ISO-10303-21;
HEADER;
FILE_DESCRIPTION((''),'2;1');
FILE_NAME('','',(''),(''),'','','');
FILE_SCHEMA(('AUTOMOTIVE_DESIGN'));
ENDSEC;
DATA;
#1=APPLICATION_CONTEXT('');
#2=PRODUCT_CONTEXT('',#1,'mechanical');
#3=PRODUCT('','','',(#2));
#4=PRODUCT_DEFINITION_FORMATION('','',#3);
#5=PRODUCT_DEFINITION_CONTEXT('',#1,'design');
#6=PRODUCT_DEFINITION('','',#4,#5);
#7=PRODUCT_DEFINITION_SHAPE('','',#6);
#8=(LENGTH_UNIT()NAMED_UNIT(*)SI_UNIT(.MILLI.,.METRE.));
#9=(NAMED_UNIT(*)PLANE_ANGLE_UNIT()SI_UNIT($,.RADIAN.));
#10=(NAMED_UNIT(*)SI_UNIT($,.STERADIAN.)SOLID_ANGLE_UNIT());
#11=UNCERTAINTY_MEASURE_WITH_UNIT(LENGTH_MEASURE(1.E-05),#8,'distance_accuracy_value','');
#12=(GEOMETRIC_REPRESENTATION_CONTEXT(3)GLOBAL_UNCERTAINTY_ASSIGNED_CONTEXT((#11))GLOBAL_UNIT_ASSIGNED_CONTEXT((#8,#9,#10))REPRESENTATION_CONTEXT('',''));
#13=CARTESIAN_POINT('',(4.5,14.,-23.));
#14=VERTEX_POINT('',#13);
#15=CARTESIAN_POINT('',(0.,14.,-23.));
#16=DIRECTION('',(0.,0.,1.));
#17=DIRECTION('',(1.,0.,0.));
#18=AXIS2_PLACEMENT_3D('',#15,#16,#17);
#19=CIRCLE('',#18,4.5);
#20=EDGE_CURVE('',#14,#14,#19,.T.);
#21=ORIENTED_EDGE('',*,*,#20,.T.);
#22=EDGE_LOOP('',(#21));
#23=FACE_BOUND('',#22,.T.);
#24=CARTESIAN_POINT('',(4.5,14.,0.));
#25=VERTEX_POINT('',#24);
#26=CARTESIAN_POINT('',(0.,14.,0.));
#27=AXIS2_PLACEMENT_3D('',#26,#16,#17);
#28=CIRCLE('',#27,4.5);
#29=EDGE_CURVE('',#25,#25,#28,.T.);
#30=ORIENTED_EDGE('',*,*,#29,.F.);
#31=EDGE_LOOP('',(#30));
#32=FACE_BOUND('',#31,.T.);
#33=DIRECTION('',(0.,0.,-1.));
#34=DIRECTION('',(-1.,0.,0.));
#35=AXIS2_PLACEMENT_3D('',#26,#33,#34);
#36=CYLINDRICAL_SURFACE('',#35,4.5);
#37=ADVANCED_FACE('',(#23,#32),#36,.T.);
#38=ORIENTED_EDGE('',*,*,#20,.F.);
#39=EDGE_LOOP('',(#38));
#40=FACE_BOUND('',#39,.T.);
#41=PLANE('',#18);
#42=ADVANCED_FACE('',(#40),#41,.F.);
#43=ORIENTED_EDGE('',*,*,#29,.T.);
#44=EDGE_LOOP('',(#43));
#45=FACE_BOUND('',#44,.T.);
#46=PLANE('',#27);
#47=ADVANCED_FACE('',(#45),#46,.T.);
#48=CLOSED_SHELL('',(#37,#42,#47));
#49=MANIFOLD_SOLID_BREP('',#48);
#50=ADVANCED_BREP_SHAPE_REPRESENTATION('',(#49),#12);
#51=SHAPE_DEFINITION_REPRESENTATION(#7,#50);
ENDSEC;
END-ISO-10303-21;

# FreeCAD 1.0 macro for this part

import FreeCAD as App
import Part
import Sketcher
from FreeCAD import Vector
Q = App.Units.Quantity

doc = App.newDocument("Part")
body = doc.addObject("PartDesign::Body", "Body")

# Sketch on XY plane
sketch1 = body.newObject("Sketcher::SketchObject", "Sketch")
sketch1.AttachmentSupport = (doc.getObject("XY_Plane"), [""])
sketch1.MapMode = "FlatFace"
sketch1.AttachmentOffset = App.Placement(Vector(0, 0, -23), App.Rotation())
sketch1.addGeometry(Part.Circle(Vector(0, 14, 0), Vector(0, 0, 1), 4.5), False)
sketch1.addConstraint([
    Sketcher.Constraint("PointOnObject", 0, 3, -2),
    Sketcher.Constraint("Diameter", 0, Q("9 mm")),
    Sketcher.Constraint("DistanceY", -1, 1, 0, 3, Q("14 mm")),
])
pad1 = body.newObject("PartDesign::Pad", "Pad")
pad1.Profile = sketch1
pad1.Length = 23

doc.recompute()
